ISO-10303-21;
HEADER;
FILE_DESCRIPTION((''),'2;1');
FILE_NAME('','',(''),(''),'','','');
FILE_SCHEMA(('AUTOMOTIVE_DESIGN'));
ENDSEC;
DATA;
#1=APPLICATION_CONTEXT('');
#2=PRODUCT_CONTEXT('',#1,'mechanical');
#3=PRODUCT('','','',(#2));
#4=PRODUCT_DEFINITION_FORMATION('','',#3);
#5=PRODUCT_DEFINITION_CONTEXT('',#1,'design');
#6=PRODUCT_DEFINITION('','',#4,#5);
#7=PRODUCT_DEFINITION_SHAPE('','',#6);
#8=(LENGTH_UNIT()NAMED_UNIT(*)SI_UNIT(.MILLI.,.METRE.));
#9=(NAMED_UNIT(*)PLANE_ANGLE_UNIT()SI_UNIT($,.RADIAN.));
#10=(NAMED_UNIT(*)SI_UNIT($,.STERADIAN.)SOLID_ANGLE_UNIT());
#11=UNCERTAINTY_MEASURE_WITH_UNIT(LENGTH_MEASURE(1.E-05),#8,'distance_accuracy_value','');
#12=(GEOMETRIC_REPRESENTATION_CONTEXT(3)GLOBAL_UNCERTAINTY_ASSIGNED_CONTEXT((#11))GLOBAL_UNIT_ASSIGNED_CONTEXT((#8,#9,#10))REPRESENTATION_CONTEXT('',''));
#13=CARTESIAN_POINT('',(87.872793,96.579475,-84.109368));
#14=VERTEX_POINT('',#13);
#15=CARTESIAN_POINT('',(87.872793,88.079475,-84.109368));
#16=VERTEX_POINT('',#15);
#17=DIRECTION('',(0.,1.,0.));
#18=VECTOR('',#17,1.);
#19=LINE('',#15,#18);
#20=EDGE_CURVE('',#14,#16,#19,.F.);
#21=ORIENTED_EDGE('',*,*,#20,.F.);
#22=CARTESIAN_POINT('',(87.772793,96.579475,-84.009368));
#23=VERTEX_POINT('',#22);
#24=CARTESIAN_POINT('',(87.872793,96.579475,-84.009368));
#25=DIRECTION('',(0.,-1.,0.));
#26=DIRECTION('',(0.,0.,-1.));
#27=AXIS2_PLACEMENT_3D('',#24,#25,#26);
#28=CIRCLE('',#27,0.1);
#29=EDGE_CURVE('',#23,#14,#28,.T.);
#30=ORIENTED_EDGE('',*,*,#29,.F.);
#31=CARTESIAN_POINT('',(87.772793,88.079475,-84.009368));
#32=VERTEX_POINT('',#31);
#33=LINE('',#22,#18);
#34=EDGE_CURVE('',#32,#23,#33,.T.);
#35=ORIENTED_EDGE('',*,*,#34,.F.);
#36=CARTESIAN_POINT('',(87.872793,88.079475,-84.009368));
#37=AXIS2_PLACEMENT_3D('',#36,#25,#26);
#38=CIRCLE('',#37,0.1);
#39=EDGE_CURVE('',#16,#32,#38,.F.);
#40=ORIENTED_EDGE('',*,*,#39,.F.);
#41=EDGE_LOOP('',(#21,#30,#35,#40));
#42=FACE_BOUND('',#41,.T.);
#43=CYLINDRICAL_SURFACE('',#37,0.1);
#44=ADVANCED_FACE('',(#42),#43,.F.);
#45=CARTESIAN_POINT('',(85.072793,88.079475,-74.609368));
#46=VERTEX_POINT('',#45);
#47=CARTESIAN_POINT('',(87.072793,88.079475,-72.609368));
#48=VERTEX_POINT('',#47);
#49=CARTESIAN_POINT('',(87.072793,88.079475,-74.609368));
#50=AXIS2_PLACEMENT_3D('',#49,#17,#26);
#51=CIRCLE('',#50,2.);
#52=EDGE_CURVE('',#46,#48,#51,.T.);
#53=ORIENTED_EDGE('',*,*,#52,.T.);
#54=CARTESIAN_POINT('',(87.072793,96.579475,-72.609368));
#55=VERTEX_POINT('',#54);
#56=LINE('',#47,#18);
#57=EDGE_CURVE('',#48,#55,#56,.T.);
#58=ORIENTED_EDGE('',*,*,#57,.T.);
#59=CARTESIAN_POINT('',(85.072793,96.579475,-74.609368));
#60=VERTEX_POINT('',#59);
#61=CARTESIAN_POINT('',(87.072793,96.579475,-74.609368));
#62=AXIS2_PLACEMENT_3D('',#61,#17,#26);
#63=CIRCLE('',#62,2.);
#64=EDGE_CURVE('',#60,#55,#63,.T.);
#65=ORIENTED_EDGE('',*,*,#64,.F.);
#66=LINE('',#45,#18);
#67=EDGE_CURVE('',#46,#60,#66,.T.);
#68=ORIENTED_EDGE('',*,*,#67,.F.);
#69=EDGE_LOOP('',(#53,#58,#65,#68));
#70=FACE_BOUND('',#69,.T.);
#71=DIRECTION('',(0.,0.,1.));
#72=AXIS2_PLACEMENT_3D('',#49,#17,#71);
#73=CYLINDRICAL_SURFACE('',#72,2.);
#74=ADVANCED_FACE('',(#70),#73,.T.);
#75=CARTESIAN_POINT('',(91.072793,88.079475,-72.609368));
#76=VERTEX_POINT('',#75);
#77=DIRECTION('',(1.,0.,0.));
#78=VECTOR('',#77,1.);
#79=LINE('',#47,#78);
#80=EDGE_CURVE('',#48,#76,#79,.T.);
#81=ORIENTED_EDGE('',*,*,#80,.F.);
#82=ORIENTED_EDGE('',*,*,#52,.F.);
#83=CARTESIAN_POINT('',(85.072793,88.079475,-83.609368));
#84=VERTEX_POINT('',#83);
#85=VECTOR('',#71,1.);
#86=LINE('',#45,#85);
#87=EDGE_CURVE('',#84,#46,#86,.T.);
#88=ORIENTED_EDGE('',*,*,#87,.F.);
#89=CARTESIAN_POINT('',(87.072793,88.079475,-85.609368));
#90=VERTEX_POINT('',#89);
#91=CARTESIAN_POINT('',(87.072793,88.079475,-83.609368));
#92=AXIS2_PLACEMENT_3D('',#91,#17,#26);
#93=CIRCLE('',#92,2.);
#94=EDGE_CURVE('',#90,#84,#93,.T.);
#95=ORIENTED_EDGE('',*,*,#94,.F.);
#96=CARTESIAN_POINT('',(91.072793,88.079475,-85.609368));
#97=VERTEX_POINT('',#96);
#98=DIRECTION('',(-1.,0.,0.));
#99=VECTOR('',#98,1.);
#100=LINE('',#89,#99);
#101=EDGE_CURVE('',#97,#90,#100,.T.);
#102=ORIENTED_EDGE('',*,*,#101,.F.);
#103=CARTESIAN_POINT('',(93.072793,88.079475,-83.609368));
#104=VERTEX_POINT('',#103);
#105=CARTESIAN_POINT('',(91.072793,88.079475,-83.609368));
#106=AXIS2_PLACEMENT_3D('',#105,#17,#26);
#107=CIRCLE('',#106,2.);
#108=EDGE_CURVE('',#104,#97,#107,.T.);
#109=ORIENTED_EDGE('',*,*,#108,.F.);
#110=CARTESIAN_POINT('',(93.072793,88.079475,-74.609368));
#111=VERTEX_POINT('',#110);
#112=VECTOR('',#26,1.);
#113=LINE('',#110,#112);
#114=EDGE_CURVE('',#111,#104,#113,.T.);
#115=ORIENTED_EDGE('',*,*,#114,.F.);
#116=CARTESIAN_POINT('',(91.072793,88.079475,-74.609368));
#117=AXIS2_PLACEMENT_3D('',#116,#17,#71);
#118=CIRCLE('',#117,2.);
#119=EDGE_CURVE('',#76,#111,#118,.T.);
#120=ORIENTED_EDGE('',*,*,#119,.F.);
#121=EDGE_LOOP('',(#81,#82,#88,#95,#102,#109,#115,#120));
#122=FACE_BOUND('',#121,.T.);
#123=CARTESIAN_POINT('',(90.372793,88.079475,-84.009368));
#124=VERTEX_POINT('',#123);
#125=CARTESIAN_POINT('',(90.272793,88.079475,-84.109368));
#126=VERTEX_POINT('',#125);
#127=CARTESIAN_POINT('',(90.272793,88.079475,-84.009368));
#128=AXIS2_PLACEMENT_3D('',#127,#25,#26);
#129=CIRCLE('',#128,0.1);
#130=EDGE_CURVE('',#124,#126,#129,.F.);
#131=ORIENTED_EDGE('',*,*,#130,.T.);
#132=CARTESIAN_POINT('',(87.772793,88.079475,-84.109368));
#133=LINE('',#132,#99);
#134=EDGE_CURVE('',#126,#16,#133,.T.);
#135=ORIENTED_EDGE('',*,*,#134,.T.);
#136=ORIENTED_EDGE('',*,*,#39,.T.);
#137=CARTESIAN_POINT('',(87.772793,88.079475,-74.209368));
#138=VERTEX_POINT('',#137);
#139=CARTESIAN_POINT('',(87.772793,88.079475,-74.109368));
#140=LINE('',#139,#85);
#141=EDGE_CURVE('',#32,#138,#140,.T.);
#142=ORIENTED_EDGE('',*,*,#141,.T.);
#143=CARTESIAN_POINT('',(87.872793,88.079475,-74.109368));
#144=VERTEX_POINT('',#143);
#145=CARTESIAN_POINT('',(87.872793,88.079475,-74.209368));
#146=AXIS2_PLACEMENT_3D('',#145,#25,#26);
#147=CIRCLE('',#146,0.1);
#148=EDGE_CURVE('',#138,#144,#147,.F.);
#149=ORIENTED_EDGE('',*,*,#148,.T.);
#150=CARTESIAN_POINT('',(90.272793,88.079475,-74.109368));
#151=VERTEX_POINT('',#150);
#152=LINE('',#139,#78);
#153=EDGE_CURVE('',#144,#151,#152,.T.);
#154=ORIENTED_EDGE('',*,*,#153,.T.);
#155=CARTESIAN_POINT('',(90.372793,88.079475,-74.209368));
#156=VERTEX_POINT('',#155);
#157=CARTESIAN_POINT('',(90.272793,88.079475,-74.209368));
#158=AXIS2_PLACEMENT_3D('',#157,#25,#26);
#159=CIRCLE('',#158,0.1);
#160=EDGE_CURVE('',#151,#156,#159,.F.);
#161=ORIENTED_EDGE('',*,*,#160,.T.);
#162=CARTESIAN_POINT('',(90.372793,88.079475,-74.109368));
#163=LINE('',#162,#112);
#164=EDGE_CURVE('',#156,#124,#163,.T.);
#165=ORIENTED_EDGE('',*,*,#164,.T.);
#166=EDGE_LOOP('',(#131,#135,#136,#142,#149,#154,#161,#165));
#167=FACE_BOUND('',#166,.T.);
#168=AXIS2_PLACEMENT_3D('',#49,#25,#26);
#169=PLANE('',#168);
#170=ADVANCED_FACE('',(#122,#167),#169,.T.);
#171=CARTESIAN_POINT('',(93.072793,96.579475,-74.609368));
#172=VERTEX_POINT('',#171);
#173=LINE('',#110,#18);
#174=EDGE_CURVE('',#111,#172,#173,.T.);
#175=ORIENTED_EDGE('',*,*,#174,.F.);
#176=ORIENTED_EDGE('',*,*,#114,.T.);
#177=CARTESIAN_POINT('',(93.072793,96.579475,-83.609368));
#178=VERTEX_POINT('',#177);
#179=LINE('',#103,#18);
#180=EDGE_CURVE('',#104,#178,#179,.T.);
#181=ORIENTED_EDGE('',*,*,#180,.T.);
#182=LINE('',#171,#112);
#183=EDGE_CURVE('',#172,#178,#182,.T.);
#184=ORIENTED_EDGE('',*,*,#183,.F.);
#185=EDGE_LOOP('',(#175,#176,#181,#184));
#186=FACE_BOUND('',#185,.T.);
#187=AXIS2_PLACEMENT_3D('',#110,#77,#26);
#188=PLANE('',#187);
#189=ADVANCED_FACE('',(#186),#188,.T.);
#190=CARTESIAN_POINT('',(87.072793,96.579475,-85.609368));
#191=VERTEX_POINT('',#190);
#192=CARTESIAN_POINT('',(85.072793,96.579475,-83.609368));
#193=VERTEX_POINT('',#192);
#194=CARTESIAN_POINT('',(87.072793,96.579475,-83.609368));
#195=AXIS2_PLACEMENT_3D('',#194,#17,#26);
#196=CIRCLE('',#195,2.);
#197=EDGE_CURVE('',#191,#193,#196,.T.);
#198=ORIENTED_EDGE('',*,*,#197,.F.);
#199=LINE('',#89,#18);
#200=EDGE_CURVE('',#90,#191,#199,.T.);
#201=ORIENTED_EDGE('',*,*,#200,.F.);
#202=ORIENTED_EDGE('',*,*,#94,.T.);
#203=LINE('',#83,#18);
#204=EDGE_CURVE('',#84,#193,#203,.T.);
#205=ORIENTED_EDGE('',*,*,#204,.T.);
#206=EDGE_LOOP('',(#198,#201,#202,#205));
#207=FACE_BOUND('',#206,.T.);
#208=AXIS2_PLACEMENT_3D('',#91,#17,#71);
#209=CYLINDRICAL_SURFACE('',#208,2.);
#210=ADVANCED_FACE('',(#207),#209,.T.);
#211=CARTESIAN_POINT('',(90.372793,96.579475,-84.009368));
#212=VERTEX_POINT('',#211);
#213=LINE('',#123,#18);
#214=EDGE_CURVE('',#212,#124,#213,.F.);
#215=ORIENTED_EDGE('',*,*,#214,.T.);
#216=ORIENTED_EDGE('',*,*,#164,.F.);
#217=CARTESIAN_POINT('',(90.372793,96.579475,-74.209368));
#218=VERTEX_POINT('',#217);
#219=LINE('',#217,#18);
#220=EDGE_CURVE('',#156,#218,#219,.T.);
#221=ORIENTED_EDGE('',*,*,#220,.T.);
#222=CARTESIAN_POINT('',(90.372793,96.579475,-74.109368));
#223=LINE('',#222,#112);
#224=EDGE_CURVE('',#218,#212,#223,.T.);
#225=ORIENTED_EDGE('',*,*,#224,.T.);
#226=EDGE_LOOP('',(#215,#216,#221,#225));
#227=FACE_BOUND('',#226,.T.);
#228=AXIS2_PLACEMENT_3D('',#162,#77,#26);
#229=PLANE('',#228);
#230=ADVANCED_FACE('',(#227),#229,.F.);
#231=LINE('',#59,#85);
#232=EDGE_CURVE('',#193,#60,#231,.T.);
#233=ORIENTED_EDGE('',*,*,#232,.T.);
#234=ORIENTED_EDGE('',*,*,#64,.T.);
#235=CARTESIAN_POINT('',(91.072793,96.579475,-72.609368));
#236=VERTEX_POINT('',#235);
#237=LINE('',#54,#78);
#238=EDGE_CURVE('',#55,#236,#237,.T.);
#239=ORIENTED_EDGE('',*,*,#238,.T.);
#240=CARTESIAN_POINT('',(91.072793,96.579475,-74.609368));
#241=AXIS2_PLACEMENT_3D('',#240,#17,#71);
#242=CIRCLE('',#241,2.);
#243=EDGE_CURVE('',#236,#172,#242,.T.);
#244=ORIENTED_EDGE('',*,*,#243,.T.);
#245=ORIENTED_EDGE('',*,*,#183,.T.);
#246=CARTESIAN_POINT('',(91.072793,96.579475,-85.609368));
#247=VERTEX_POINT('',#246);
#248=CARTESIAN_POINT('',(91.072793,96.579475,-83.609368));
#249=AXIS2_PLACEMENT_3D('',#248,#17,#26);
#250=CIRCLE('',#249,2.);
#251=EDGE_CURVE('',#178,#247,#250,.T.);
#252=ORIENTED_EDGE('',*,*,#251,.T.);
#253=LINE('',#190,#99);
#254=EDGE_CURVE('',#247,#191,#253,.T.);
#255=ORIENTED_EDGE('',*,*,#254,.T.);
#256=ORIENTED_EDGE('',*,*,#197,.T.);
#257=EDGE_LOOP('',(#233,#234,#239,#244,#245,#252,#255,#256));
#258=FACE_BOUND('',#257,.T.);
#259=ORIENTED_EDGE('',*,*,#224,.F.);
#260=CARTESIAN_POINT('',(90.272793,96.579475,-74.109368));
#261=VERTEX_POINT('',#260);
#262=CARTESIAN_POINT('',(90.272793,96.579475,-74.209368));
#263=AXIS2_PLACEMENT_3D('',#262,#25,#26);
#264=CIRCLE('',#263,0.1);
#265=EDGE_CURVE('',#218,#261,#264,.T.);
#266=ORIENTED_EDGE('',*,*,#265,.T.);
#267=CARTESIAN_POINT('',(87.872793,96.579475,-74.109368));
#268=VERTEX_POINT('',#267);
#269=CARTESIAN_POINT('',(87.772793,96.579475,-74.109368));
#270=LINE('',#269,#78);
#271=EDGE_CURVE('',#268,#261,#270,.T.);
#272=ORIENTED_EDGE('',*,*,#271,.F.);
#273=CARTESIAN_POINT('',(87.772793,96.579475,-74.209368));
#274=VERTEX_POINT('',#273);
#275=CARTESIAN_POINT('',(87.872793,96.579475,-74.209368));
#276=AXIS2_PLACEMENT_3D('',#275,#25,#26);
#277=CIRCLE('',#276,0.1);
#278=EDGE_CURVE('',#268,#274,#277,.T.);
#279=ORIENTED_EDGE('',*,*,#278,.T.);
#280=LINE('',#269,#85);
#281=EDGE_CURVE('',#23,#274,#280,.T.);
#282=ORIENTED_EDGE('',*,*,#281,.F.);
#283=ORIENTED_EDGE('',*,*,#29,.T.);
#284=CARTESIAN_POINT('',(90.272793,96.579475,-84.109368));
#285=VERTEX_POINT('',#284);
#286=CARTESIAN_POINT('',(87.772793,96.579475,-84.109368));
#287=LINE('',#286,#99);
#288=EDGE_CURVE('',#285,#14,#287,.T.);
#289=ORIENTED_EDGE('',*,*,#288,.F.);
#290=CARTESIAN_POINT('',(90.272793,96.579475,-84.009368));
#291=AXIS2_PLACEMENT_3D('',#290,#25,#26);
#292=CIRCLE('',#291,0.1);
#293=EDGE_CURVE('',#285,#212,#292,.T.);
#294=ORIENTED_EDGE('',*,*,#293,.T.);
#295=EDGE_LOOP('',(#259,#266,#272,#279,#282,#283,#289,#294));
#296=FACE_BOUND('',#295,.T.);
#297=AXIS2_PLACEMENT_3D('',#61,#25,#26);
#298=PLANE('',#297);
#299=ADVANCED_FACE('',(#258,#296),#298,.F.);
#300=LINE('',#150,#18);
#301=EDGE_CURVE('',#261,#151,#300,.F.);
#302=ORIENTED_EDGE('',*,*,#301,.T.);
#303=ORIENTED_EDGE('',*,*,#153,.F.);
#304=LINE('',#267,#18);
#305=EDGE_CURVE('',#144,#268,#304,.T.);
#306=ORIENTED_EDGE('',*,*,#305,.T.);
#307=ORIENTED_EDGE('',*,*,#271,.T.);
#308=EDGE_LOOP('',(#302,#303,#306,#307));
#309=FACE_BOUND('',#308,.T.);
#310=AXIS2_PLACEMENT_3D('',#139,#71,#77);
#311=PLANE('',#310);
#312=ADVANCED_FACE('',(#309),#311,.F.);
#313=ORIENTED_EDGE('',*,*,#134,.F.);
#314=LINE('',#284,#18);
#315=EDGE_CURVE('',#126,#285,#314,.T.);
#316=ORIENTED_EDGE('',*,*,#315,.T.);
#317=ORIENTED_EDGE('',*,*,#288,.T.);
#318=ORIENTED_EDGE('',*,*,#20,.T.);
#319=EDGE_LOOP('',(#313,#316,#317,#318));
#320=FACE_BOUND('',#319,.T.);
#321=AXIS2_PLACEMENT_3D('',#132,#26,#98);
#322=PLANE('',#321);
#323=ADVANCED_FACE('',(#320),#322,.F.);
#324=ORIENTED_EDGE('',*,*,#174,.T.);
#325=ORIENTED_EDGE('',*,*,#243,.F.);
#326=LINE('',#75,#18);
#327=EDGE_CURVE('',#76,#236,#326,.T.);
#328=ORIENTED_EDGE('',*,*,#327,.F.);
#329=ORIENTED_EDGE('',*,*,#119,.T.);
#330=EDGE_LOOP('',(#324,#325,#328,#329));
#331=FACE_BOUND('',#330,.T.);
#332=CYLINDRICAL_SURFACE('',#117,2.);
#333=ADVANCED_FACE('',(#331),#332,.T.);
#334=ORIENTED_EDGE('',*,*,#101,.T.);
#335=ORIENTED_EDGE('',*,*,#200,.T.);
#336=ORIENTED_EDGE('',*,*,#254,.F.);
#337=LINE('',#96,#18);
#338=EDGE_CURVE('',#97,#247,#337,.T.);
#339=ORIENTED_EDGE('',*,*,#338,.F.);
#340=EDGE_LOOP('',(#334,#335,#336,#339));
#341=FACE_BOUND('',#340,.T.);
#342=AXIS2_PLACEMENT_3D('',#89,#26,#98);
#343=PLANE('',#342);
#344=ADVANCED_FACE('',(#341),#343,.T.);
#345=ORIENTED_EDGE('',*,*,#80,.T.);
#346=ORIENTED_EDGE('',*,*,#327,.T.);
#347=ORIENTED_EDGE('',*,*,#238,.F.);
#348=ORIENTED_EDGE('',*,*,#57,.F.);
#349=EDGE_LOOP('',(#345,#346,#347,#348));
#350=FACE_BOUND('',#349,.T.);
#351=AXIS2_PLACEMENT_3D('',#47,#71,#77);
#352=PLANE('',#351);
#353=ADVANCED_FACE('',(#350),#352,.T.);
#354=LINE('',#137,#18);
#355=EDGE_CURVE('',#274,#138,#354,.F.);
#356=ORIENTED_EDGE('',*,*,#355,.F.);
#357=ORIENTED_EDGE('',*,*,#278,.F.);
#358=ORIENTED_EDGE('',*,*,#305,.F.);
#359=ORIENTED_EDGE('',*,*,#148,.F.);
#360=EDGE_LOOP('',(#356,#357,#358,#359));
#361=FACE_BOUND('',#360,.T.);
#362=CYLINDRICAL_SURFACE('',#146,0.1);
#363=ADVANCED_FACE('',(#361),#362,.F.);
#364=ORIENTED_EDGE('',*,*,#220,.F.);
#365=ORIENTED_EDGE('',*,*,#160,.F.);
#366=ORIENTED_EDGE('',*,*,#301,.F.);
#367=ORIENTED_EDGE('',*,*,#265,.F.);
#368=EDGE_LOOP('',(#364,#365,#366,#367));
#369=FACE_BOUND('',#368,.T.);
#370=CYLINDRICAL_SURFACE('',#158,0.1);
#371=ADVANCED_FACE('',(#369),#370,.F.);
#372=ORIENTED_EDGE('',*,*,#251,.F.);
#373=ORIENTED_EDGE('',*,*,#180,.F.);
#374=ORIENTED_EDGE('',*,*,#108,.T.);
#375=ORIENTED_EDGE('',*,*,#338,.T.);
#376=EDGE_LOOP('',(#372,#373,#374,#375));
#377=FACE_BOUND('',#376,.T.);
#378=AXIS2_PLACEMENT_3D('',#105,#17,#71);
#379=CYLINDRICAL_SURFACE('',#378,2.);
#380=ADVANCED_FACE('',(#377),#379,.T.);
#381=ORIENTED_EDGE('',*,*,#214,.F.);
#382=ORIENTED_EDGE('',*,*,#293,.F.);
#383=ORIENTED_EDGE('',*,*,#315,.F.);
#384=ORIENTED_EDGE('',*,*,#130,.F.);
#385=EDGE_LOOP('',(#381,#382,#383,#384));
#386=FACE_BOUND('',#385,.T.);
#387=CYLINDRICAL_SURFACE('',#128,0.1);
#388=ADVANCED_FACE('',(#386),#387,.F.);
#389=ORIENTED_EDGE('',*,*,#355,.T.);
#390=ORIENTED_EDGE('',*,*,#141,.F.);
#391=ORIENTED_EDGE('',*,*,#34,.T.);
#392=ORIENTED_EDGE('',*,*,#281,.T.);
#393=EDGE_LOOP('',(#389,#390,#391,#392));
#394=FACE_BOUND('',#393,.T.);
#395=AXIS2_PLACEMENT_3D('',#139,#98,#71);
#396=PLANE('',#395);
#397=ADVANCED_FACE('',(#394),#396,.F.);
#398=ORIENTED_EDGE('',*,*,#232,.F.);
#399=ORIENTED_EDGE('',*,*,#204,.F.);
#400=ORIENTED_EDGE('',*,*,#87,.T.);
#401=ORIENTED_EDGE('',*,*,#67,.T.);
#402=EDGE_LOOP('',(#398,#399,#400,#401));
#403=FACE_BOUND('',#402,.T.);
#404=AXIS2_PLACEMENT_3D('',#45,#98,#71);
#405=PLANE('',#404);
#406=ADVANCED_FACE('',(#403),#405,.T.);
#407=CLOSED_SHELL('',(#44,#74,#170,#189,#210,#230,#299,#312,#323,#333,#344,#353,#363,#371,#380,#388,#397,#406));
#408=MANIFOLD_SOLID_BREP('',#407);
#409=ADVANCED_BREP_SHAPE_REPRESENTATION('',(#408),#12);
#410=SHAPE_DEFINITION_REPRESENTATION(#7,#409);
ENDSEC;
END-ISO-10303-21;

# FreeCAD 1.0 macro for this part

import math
import FreeCAD as App
import Part
import Sketcher
from FreeCAD import Vector
Q = App.Units.Quantity


def edges_at(feature, points):
    """Names of the edges that pass closest to the given points."""
    edges = feature.Shape.Edges
    near = lambda p: min(range(len(edges)), key=lambda i: edges[i].distToShape(Part.Vertex(*p))[0])
    return sorted({f"Edge{near(p) + 1}" for p in points})


def add_polygon(sketch, points):
    """Adds a closed chain of lines whose ends are joined by coincident constraints."""
    first, n = sketch.GeometryCount, len(points)
    for a, b in zip(points, points[1:] + points[:1]):
        sketch.addGeometry(Part.LineSegment(App.Vector(*a, 0), App.Vector(*b, 0)), False)
    for i in range(n):
        sketch.addConstraint(Sketcher.Constraint("Coincident", first + i, 2, first + (i + 1) % n, 1))

doc = App.newDocument("Part")
body = doc.addObject("PartDesign::Body", "Body")

# Sketch on XZ plane
sketch1 = body.newObject("Sketcher::SketchObject", "Sketch")
sketch1.AttachmentSupport = (doc.getObject("XZ_Plane"), [""])
sketch1.MapMode = "FlatFace"
sketch1.AttachmentOffset = App.Placement(Vector(0, 0, -96.579475), App.Rotation())
sketch1.addGeometry(Part.LineSegment(Vector(87.1, -72.6, 0), Vector(91.1, -72.6, 0)), False)  # 0
sketch1.addGeometry(Part.ArcOfCircle(Part.Circle(Vector(91.1, -74.6, 0), Vector(0, 0, 1), 2), math.radians(0), math.radians(90)), False)  # 1
sketch1.addGeometry(Part.LineSegment(Vector(93.1, -74.6, 0), Vector(93.1, -83.6, 0)), False)  # 2
sketch1.addGeometry(Part.ArcOfCircle(Part.Circle(Vector(91.1, -83.6, 0), Vector(0, 0, 1), 2), math.radians(-90), math.radians(0)), False)  # 3
sketch1.addGeometry(Part.LineSegment(Vector(91.1, -85.6, 0), Vector(87.1, -85.6, 0)), False)  # 4
sketch1.addGeometry(Part.ArcOfCircle(Part.Circle(Vector(87.1, -83.6, 0), Vector(0, 0, 1), 2), math.radians(-180), math.radians(-90)), False)  # 5
sketch1.addGeometry(Part.LineSegment(Vector(85.1, -83.6, 0), Vector(85.1, -74.6, 0)), False)  # 6
sketch1.addGeometry(Part.ArcOfCircle(Part.Circle(Vector(87.1, -74.6, 0), Vector(0, 0, 1), 2), math.radians(90), math.radians(180)), False)  # 7
add_polygon(sketch1, [(90.4, -74.1), (87.8, -74.1), (87.8, -84.1), (90.4, -84.1)])  # lines 8-11
sketch1.addConstraint([
    Sketcher.Constraint("Tangent", 0, 2, 1, 2),
    Sketcher.Constraint("Tangent", 1, 1, 2, 1),
    Sketcher.Constraint("Tangent", 2, 2, 3, 2),
    Sketcher.Constraint("Tangent", 3, 1, 4, 1),
    Sketcher.Constraint("Tangent", 4, 2, 5, 2),
    Sketcher.Constraint("Tangent", 5, 1, 6, 1),
    Sketcher.Constraint("Tangent", 6, 2, 7, 2),
    Sketcher.Constraint("Tangent", 7, 1, 0, 1),
    Sketcher.Constraint("Horizontal", 0),
    Sketcher.Constraint("Vertical", 2),
    Sketcher.Constraint("Horizontal", 4),
    Sketcher.Constraint("Vertical", 6),
    Sketcher.Constraint("Horizontal", 8),
    Sketcher.Constraint("Vertical", 9),
    Sketcher.Constraint("Horizontal", 10),
    Sketcher.Constraint("Vertical", 11),
    Sketcher.Constraint("Equal", 1, 3),
    Sketcher.Constraint("Equal", 3, 5),
    Sketcher.Constraint("Equal", 5, 7),
    Sketcher.Constraint("Radius", 1, Q("2 mm")),
    Sketcher.Constraint("DistanceX", 0, 1, 0, 2, Q("4 mm")),
    Sketcher.Constraint("DistanceY", 2, 2, 2, 1, Q("9 mm")),
    Sketcher.Constraint("DistanceY", 9, 2, 9, 1, Q("10 mm")),
    Sketcher.Constraint("DistanceX", 8, 2, 8, 1, Q("2.6 mm")),
    Sketcher.Constraint("DistanceX", 7, 3, 8, 2, Q("0.7 mm")),
    Sketcher.Constraint("DistanceY", 7, 3, 8, 2, Q("0.5 mm")),
    Sketcher.Constraint("DistanceX", -1, 1, 1, 3, Q("91.072793 mm")),
    Sketcher.Constraint("DistanceY", 1, 3, -1, 1, Q("74.609368 mm")),
])
pad1 = body.newObject("PartDesign::Pad", "Pad")
pad1.Profile = sketch1
pad1.Length = 8.5
doc.recompute()

fillet = body.newObject("PartDesign::Fillet", "Fillet")
fillet.Base = (pad1, edges_at(pad1, [
    (90.373, 92.329, -84.109),
    (90.373, 92.329, -74.109),
    (87.773, 92.329, -74.109),
    (87.773, 92.329, -84.109),
]))
fillet.Radius = 0.1

doc.recompute()
